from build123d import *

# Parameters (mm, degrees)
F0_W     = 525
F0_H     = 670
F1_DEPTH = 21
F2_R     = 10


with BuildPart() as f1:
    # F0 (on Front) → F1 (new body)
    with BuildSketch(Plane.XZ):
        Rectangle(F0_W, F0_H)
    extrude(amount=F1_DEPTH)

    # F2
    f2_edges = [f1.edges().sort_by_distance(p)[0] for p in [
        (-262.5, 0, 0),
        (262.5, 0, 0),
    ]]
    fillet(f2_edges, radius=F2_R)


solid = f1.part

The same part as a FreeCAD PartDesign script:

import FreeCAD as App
import Part
import Sketcher
from FreeCAD import Vector
Q = App.Units.Quantity


def edges_at(feature, points):
    """Names of the edges that pass closest to the given points."""
    edges = feature.Shape.Edges
    near = lambda p: min(range(len(edges)), key=lambda i: edges[i].distToShape(Part.Vertex(*p))[0])
    return sorted({f"Edge{near(p) + 1}" for p in points})


def add_polygon(sketch, points):
    """Adds a closed chain of lines whose ends are joined by coincident constraints."""
    first, n = sketch.GeometryCount, len(points)
    for a, b in zip(points, points[1:] + points[:1]):
        sketch.addGeometry(Part.LineSegment(App.Vector(*a, 0), App.Vector(*b, 0)), False)
    for i in range(n):
        sketch.addConstraint(Sketcher.Constraint("Coincident", first + i, 2, first + (i + 1) % n, 1))

doc = App.newDocument("Part")
body = doc.addObject("PartDesign::Body", "Body")

# Sketch on XZ plane
sketch1 = doc.addObject("Sketcher::SketchObject", "Sketch")
body.addObject(sketch1)
sketch1.AttachmentSupport = (doc.XZ_Plane, [""])
sketch1.MapMode = "FlatFace"
add_polygon(sketch1, [(-262, 335), (-262, -335), (262, -335), (262, 335)])  # lines 0-3
sketch1.addConstraint([
    Sketcher.Constraint("Vertical", 0),
    Sketcher.Constraint("Horizontal", 1),
    Sketcher.Constraint("Vertical", 2),
    Sketcher.Constraint("Horizontal", 3),
    Sketcher.Constraint("Symmetric", 0, 2, 2, 2, -1, 1),
    Sketcher.Constraint("DistanceX", 1, 1, 1, 2, Q("525 mm")),
    Sketcher.Constraint("DistanceY", 0, 2, 0, 1, Q("670 mm")),
])
pad1 = doc.addObject("PartDesign::Pad", "Pad")
body.addObject(pad1)
pad1.Profile = sketch1
pad1.Length = 21
doc.recompute()

fillet = doc.addObject("PartDesign::Fillet", "Fillet")
body.addObject(fillet)
fillet.Base = (pad1, edges_at(pad1, [(-262.5, 0, 0), (262.5, 0, 0)]))
fillet.Radius = 10

doc.recompute()
